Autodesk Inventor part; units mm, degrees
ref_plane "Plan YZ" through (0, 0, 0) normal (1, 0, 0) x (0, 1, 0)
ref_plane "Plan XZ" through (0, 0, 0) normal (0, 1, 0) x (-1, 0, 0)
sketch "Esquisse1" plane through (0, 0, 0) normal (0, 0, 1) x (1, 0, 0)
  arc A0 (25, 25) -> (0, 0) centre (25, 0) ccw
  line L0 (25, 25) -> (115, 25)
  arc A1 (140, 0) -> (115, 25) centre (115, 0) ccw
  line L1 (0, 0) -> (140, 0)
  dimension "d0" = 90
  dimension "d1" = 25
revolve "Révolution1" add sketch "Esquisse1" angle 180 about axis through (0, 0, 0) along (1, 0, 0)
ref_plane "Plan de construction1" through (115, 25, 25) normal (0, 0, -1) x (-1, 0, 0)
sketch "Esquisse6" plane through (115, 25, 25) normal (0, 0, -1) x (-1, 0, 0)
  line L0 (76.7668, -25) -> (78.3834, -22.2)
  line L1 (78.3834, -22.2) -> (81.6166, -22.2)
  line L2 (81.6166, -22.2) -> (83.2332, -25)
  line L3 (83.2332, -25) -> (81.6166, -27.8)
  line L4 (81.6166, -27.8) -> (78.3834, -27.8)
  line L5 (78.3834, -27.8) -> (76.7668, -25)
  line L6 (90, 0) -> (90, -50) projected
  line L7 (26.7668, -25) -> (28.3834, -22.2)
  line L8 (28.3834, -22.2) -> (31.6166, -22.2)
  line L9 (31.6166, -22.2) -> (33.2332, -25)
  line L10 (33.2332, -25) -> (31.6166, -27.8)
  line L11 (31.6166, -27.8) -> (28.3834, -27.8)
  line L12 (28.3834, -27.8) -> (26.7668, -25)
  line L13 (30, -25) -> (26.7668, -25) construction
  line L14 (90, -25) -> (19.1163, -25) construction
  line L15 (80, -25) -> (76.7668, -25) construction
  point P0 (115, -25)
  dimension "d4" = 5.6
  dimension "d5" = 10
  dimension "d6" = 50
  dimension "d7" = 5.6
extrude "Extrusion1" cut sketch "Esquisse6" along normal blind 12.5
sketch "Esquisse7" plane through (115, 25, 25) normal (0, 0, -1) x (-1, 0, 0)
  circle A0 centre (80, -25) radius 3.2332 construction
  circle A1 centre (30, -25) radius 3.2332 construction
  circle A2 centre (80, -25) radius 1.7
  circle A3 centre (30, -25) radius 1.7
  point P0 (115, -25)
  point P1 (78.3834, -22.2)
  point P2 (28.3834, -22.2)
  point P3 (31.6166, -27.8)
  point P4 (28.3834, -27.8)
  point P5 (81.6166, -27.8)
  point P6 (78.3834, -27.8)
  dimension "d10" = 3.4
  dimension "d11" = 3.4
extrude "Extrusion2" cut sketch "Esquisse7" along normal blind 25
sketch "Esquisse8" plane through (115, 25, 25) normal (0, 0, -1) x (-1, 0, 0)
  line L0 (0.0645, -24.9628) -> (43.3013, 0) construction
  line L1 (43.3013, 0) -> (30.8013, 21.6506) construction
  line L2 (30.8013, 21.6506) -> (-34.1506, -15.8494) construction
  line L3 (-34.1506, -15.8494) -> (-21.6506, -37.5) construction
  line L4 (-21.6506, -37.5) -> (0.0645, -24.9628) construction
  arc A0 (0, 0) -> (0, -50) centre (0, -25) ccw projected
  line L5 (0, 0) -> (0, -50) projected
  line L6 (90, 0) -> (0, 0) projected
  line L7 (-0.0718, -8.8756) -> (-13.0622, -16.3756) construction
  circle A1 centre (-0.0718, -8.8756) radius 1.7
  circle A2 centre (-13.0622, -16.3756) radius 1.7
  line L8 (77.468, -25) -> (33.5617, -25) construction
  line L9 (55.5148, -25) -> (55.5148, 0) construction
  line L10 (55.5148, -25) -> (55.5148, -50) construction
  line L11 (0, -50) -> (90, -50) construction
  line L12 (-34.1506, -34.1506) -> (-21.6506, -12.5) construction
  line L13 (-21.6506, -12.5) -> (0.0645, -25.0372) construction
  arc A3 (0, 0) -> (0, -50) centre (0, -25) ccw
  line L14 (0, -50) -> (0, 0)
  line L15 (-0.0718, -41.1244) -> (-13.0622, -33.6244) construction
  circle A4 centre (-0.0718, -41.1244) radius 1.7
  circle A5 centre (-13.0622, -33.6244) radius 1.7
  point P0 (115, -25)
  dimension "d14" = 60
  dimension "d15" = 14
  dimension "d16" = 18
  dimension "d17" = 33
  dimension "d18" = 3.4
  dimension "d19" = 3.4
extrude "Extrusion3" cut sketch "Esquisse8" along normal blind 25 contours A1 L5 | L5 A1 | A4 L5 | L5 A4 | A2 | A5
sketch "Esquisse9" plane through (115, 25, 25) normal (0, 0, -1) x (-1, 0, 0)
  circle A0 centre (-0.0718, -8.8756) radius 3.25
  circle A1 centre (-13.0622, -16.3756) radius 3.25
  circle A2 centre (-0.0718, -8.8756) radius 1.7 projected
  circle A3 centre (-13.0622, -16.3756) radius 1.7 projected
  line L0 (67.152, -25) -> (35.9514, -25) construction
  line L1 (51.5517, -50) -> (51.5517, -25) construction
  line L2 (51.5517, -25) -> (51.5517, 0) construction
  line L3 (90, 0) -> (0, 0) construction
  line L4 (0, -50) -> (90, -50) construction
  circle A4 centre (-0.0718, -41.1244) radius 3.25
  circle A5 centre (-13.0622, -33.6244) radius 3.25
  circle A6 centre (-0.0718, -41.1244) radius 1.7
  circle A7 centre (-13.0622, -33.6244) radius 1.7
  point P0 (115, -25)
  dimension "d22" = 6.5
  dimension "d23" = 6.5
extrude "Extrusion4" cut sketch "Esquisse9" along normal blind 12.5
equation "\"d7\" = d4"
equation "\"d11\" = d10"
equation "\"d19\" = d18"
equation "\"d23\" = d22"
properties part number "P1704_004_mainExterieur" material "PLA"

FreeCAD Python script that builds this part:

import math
import FreeCAD as App
import Part
import Sketcher

V = App.Vector
Q = App.Units.Quantity

doc = App.newDocument("Part")
params = doc.addObject("Spreadsheet::Sheet", "Params")
for row, (alias, value) in enumerate([
    ("sketch1_radius", "25 mm"),
    ("sketch1_width", "90 mm"),
    ("revolution_angle", "180 deg"),
    ("pocket1_length", "12.5 mm"),
    ("sketch3_diameter", "3.4 mm"),
    ("pocket2_length", "25 mm"),
    ("sketch4_diameter", "3.4 mm"),
    ("pocket3_length", "25 mm"),
    ("sketch5_diameter", "6.5 mm"),
    ("sketch5_diameter2", "3.4 mm"),
    ("pocket4_length", "12.5 mm"),
], start=1):
    params.set(f"A{row}", alias)
    params.set(f"B{row}", "=" + value)
    params.setAlias(f"B{row}", alias)

body = doc.addObject("PartDesign::Body", "Body")

# Sketch on XY plane
sketch1 = body.newObject("Sketcher::SketchObject", "Sketch")
sketch1.AttachmentSupport = (doc.getObject("XY_Plane"), [""])
sketch1.MapMode = "FlatFace"
sketch1.addGeometry([
    Part.LineSegment(V(115, 25, 0), V(25, 25, 0)),
    Part.ArcOfCircle(Part.Circle(V(25, 0, 0), V(0, 0, 1), 25), math.radians(90), math.radians(180)),
    Part.LineSegment(V(0, 0, 0), V(140, 0, 0)),
    Part.ArcOfCircle(Part.Circle(V(115, 0, 0), V(0, 0, 1), 25), math.radians(0), math.radians(90)),
], False)
sketch1.addConstraint([
    Sketcher.Constraint("Tangent", 0, 2, 1, 1),
    Sketcher.Constraint("Coincident", 1, 2, 2, 1),
    Sketcher.Constraint("Coincident", 2, 2, 3, 1),
    Sketcher.Constraint("Tangent", 3, 2, 0, 1),
    Sketcher.Constraint("Horizontal", 0),
    Sketcher.Constraint("Horizontal", 2),
    Sketcher.Constraint("Coincident", 1, 2, -1, 1),
    Sketcher.Constraint("Equal", 1, 3),
    Sketcher.Constraint("PointOnObject", 1, 3, -1),
    Sketcher.Constraint("Radius", 1, 25.0),
    Sketcher.Constraint("DistanceX", 0, 2, 0, 1, 90.0),
])
sketch1.setExpression("Constraints[9]", "Params.sketch1_radius")
sketch1.setExpression("Constraints[10]", "Params.sketch1_width")
revolution = body.newObject("PartDesign::Revolution", "Revolution")
revolution.Profile = sketch1
revolution.ReferenceAxis = (sketch1, ["H_Axis"])
revolution.setExpression("Angle", "Params.revolution_angle")

# Sketch on XY plane
sketch2 = body.newObject("Sketcher::SketchObject", "Sketch001")
sketch2.AttachmentSupport = (doc.getObject("XY_Plane"), [""])
sketch2.MapMode = "FlatFace"
sketch2.AttachmentOffset = App.Placement(V(0, 0, 25), App.Rotation())
sketch2.addGeometry([
    Part.LineSegment(V(36.6166, 2.8, 0), V(38.2332, 0, 0)),  # 0
    Part.LineSegment(V(38.2332, 0, 0), V(36.6166, -2.8, 0)),  # 1
    Part.LineSegment(V(36.6166, -2.8, 0), V(33.3834, -2.8, 0)),  # 2
    Part.LineSegment(V(33.3834, -2.8, 0), V(31.7668, 0, 0)),  # 3
    Part.LineSegment(V(31.7668, 0, 0), V(33.3834, 2.8, 0)),  # 4
    Part.LineSegment(V(33.3834, 2.8, 0), V(36.6166, 2.8, 0)),  # 5
    Part.LineSegment(V(86.6166, 2.8, 0), V(88.2332, 0, 0)),  # 6
    Part.LineSegment(V(88.2332, 0, 0), V(86.6166, -2.8, 0)),  # 7
    Part.LineSegment(V(86.6166, -2.8, 0), V(83.3834, -2.8, 0)),  # 8
    Part.LineSegment(V(83.3834, -2.8, 0), V(81.7668, 0, 0)),  # 9
    Part.LineSegment(V(81.7668, 0, 0), V(83.3834, 2.8, 0)),  # 10
    Part.LineSegment(V(83.3834, 2.8, 0), V(86.6166, 2.8, 0)),  # 11
], False)
sketch2.addConstraint([
    Sketcher.Constraint("Coincident", 0, 2, 1, 1),
    Sketcher.Constraint("Coincident", 1, 2, 2, 1),
    Sketcher.Constraint("Coincident", 2, 2, 3, 1),
    Sketcher.Constraint("Coincident", 3, 2, 4, 1),
    Sketcher.Constraint("Coincident", 4, 2, 5, 1),
    Sketcher.Constraint("Coincident", 5, 2, 0, 1),
    Sketcher.Constraint("Coincident", 6, 2, 7, 1),
    Sketcher.Constraint("Coincident", 7, 2, 8, 1),
    Sketcher.Constraint("Coincident", 8, 2, 9, 1),
    Sketcher.Constraint("Coincident", 9, 2, 10, 1),
    Sketcher.Constraint("Coincident", 10, 2, 11, 1),
    Sketcher.Constraint("Coincident", 11, 2, 6, 1),
    Sketcher.Constraint("Horizontal", 2),
    Sketcher.Constraint("Horizontal", 5),
    Sketcher.Constraint("Horizontal", 8),
    Sketcher.Constraint("Horizontal", 11),
    Sketcher.Constraint("Symmetric", 2, 2, 4, 2, -1),
    Sketcher.Constraint("Symmetric", 8, 2, 10, 2, -1),
    Sketcher.Constraint("PointOnObject", 0, 2, -1),
    Sketcher.Constraint("PointOnObject", 3, 2, -1),
    Sketcher.Constraint("PointOnObject", 6, 2, -1),
    Sketcher.Constraint("PointOnObject", 9, 2, -1),
    Sketcher.Constraint("Parallel", 0, 3),
    Sketcher.Constraint("Parallel", 1, 4),
    Sketcher.Constraint("Parallel", 3, 6),
    Sketcher.Constraint("Parallel", 4, 7),
    Sketcher.Constraint("Parallel", 6, 9),
    Sketcher.Constraint("Horizontal", 2, 2, 7, 2),
    Sketcher.Constraint("Equal", 5, 8),
    Sketcher.Constraint("DistanceX", 0, 2, 6, 2, 50.0),
    Sketcher.Constraint("DistanceY", 2, 2, 4, 2, 5.6),
    Sketcher.Constraint("Angle", 0, Q("-59.9997 deg")),
    Sketcher.Constraint("DistanceX", 2, 2, 2, 1, 3.2332),
    Sketcher.Constraint("DistanceX", -1, 1, 0, 2, 38.2332),
])
pocket1 = body.newObject("PartDesign::Pocket", "Pocket")
pocket1.Profile = sketch2
pocket1.setExpression("Length", "Params.pocket1_length")

# Sketch on XY plane
sketch3 = body.newObject("Sketcher::SketchObject", "Sketch002")
sketch3.AttachmentSupport = (doc.getObject("XY_Plane"), [""])
sketch3.MapMode = "FlatFace"
sketch3.AttachmentOffset = App.Placement(V(0, 0, 25), App.Rotation())
sketch3.addGeometry([
    Part.Circle(V(35, 0, 0), V(0, 0, 1), 1.7),
    Part.Circle(V(85, 0, 0), V(0, 0, 1), 1.7),
], False)
sketch3.addConstraint([
    Sketcher.Constraint("Equal", 0, 1),
    Sketcher.Constraint("PointOnObject", 0, 3, -1),
    Sketcher.Constraint("PointOnObject", 1, 3, -1),
    Sketcher.Constraint("Diameter", 0, 3.4),
    Sketcher.Constraint("DistanceX", -1, 1, 0, 3, 35.0),
    Sketcher.Constraint("DistanceX", -1, 1, 1, 3, 85.0),
])
sketch3.setExpression("Constraints[3]", "Params.sketch3_diameter")
pocket2 = body.newObject("PartDesign::Pocket", "Pocket001")
pocket2.Profile = sketch3
pocket2.setExpression("Length", "Params.pocket2_length")

# Sketch on XY plane
sketch4 = body.newObject("Sketcher::SketchObject", "Sketch003")
sketch4.AttachmentSupport = (doc.getObject("XY_Plane"), [""])
sketch4.MapMode = "FlatFace"
sketch4.AttachmentOffset = App.Placement(V(0, 0, 25), App.Rotation())
sketch4.addGeometry([
    Part.Circle(V(115.0718, 16.1244, 0), V(0, 0, 1), 1.7),
    Part.Circle(V(115.0718, -16.1244, 0), V(0, 0, 1), 1.7),
    Part.Circle(V(128.0622, 8.6244, 0), V(0, 0, 1), 1.7),
    Part.Circle(V(128.0622, -8.6244, 0), V(0, 0, 1), 1.7),
], False)
sketch4.addConstraint([
    Sketcher.Constraint("Equal", 0, 1),
    Sketcher.Constraint("Equal", 1, 2),
    Sketcher.Constraint("Equal", 2, 3),
    Sketcher.Constraint("Symmetric", 0, 3, 1, 3, -1),
    Sketcher.Constraint("Symmetric", 2, 3, 3, 3, -1),
    Sketcher.Constraint("Diameter", 0, 3.4),
    Sketcher.Constraint("DistanceY", 2, 3, 0, 3, 7.5),
    Sketcher.Constraint("DistanceX", -1, 1, 0, 3, 115.0718),
    Sketcher.Constraint("DistanceY", -1, 1, 0, 3, 16.1244),
    Sketcher.Constraint("DistanceX", -1, 1, 2, 3, 128.0622),
])
sketch4.setExpression("Constraints[5]", "Params.sketch4_diameter")
pocket3 = body.newObject("PartDesign::Pocket", "Pocket002")
pocket3.Profile = sketch4
pocket3.setExpression("Length", "Params.pocket3_length")

# Sketch on XY plane
sketch5 = body.newObject("Sketcher::SketchObject", "Sketch004")
sketch5.AttachmentSupport = (doc.getObject("XY_Plane"), [""])
sketch5.MapMode = "FlatFace"
sketch5.AttachmentOffset = App.Placement(V(0, 0, 25), App.Rotation())
sketch5.addGeometry([
    Part.Circle(V(115.0718, 16.1244, 0), V(0, 0, 1), 3.25),  # 0
    Part.Circle(V(115.0718, 16.1244, 0), V(0, 0, 1), 1.7),  # 1
    Part.Circle(V(128.0622, 8.6244, 0), V(0, 0, 1), 3.25),  # 2
    Part.Circle(V(128.0622, 8.6244, 0), V(0, 0, 1), 1.7),  # 3
    Part.Circle(V(115.0718, -16.1244, 0), V(0, 0, 1), 3.25),  # 4
    Part.Circle(V(115.0718, -16.1244, 0), V(0, 0, 1), 1.7),  # 5
    Part.Circle(V(128.0622, -8.6244, 0), V(0, 0, 1), 3.25),  # 6
    Part.Circle(V(128.0622, -8.6244, 0), V(0, 0, 1), 1.7),  # 7
], False)
sketch5.addConstraint([
    Sketcher.Constraint("Coincident", 1, 3, 0, 3),
    Sketcher.Constraint("Coincident", 3, 3, 2, 3),
    Sketcher.Constraint("Coincident", 5, 3, 4, 3),
    Sketcher.Constraint("Coincident", 7, 3, 6, 3),
    Sketcher.Constraint("Equal", 0, 2),
    Sketcher.Constraint("Equal", 1, 3),
    Sketcher.Constraint("Equal", 2, 4),
    Sketcher.Constraint("Equal", 3, 5),
    Sketcher.Constraint("Equal", 4, 6),
    Sketcher.Constraint("Equal", 5, 7),
    Sketcher.Constraint("Symmetric", 0, 3, 4, 3, -1),
    Sketcher.Constraint("Symmetric", 2, 3, 6, 3, -1),
    Sketcher.Constraint("Diameter", 0, 6.5),
    Sketcher.Constraint("Diameter", 1, 3.4),
    Sketcher.Constraint("DistanceY", 2, 3, 0, 3, 7.5),
    Sketcher.Constraint("DistanceX", -1, 1, 0, 3, 115.0718),
    Sketcher.Constraint("DistanceY", -1, 1, 0, 3, 16.1244),
    Sketcher.Constraint("DistanceX", -1, 1, 2, 3, 128.0622),
])
sketch5.setExpression("Constraints[12]", "Params.sketch5_diameter")
sketch5.setExpression("Constraints[13]", "Params.sketch5_diameter2")
pocket4 = body.newObject("PartDesign::Pocket", "Pocket003")
pocket4.Profile = sketch5
pocket4.setExpression("Length", "Params.pocket4_length")

doc.recompute()
